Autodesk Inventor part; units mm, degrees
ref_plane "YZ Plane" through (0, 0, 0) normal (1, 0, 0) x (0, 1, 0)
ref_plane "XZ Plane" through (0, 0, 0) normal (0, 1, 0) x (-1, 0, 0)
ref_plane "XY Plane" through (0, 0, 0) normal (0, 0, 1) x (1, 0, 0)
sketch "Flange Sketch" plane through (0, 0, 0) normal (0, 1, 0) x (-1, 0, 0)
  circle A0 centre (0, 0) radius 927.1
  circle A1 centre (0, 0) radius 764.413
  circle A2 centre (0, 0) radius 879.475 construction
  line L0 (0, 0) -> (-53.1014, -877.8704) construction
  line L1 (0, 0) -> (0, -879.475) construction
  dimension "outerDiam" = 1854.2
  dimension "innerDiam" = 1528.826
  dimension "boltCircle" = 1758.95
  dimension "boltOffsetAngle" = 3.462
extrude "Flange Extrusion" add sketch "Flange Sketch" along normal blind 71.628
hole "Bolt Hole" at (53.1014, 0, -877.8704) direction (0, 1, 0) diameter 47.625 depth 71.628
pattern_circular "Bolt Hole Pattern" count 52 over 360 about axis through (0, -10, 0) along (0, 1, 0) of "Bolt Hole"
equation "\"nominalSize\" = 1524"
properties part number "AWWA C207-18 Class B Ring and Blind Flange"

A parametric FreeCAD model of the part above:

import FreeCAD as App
import Part
import Sketcher
Q = App.Units.Quantity

doc = App.newDocument("Part")
body = doc.addObject("PartDesign::Body", "Body")

sketch1 = body.newObject("Sketcher::SketchObject", "Sketch")
sketch1.AttachmentSupport = (doc.getObject("XZ_Plane"), [""])
sketch1.MapMode = "FlatFace"
sketch1.addGeometry([
    Part.Circle(App.Vector(0, 0, 0), App.Vector(0, 0, 1), 927.1),
    Part.Circle(App.Vector(0, 0, 0), App.Vector(0, 0, 1), 764.413),
], False)
sketch1.addConstraint([
    Sketcher.Constraint("Coincident", 0, 3, -1, 1),
    Sketcher.Constraint("Coincident", 1, 3, -1, 1),
    Sketcher.Constraint("Diameter", 0, Q("73 in")),
    Sketcher.Constraint("Diameter", 1, Q("60.19 in")),
])
pad1 = body.newObject("PartDesign::Pad", "Pad")
pad1.Profile = sketch1
pad1.Length = Q("2.82 in")
pad1.Reversed = True

sketch2 = body.newObject("Sketcher::SketchObject", "Sketch001")
sketch2.AttachmentSupport = (doc.getObject("XZ_Plane"), [""])
sketch2.MapMode = "FlatFace"
sketch2.addGeometry(Part.Circle(App.Vector(53.1014, -877.8704, 0), App.Vector(0, 0, 1), 23.8125), False)
sketch2.addConstraint([
    Sketcher.Constraint("Diameter", 0, Q("1.875 in")),
    Sketcher.Constraint("DistanceX", -1, 1, 0, 3, Q("2.0906 in")),
    Sketcher.Constraint("DistanceY", 0, 3, -1, 1, 877.8704),
])
doc.recompute()
hole = body.newObject("PartDesign::Hole", "Hole")
hole.Profile = sketch2
hole.ThreadType = "None"
hole.Diameter = Q("1.875 in")
hole.DepthType = "Dimension"
hole.Depth = Q("2.82 in")
hole.DrillPoint = "Flat"
doc.recompute()

polarpattern = body.newObject("PartDesign::PolarPattern", "PolarPattern")
polarpattern.Originals = [hole]
polarpattern.Axis = (doc.getObject("Y_Axis"), [""])
polarpattern.Angle = 360
polarpattern.Occurrences = 52
body.Tip = polarpattern

doc.recompute()
